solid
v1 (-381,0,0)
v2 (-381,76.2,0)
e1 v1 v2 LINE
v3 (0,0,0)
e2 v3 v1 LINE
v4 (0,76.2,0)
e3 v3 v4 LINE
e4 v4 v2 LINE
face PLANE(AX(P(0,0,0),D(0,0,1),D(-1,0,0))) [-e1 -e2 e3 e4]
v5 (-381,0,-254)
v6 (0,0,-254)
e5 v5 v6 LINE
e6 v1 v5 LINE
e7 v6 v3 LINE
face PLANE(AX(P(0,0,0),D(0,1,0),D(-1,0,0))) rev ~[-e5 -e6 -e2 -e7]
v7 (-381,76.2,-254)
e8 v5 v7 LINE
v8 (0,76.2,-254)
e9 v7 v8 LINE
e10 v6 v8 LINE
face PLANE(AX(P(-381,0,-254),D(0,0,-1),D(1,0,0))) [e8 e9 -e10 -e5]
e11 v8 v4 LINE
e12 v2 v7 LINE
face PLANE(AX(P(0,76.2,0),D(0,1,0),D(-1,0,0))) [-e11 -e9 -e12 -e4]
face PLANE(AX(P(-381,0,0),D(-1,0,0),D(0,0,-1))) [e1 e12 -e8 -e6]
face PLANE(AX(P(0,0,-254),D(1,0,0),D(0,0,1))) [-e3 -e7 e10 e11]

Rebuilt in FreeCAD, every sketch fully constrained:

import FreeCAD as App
import Part
import Sketcher
Q = App.Units.Quantity


def add_polygon(sketch, points):
    """Adds a closed chain of lines whose ends are joined by coincident constraints."""
    first, n = sketch.GeometryCount, len(points)
    for a, b in zip(points, points[1:] + points[:1]):
        sketch.addGeometry(Part.LineSegment(App.Vector(*a, 0), App.Vector(*b, 0)), False)
    for i in range(n):
        sketch.addConstraint(Sketcher.Constraint("Coincident", first + i, 2, first + (i + 1) % n, 1))

doc = App.newDocument("Part")
body = doc.addObject("PartDesign::Body", "Body")

# Sketch on XZ plane
sketch1 = body.newObject("Sketcher::SketchObject", "Sketch")
sketch1.AttachmentSupport = (doc.getObject("XZ_Plane"), [""])
sketch1.MapMode = "FlatFace"
add_polygon(sketch1, [(-381, 0), (0, 0), (0, -254), (-381, -254)])  # lines 0-3
sketch1.addConstraint([
    Sketcher.Constraint("Horizontal", 0),
    Sketcher.Constraint("Vertical", 1),
    Sketcher.Constraint("Horizontal", 2),
    Sketcher.Constraint("Vertical", 3),
    Sketcher.Constraint("Coincident", 0, 2, -1, 1),
    Sketcher.Constraint("DistanceX", 0, 1, 0, 2, Q("15 in")),
    Sketcher.Constraint("DistanceY", 1, 2, 1, 1, Q("10 in")),
])
pad1 = body.newObject("PartDesign::Pad", "Pad")
pad1.Profile = sketch1
pad1.Length = Q("3 in")
pad1.Reversed = True

doc.recompute()
